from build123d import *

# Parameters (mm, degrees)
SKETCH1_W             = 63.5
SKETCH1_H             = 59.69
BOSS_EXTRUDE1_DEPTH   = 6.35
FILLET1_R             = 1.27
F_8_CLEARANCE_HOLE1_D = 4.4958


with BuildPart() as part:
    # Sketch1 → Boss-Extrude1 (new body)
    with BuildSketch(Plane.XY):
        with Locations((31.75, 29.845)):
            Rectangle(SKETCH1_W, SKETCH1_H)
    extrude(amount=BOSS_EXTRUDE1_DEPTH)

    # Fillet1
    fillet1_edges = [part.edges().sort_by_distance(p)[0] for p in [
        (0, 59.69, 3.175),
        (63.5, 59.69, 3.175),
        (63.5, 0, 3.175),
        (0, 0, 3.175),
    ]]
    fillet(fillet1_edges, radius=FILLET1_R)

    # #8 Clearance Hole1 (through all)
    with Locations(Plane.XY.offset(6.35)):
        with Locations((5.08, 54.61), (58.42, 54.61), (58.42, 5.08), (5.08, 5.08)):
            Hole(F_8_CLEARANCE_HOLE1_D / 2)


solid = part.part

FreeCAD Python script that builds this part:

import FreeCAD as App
import Part
import Sketcher
from FreeCAD import Vector
Q = App.Units.Quantity


def edges_at(feature, points):
    """Names of the edges that pass closest to the given points."""
    edges = feature.Shape.Edges
    near = lambda p: min(range(len(edges)), key=lambda i: edges[i].distToShape(Part.Vertex(*p))[0])
    return sorted({f"Edge{near(p) + 1}" for p in points})

doc = App.newDocument("Part")
body = doc.addObject("PartDesign::Body", "Body")

# Sketch on XY plane
sketch1 = body.newObject("Sketcher::SketchObject", "Sketch")
sketch1.AttachmentSupport = (doc.getObject("XY_Plane"), [""])
sketch1.MapMode = "FlatFace"
sketch1.addGeometry([
    Part.LineSegment(Vector(0, 60, 0), Vector(0, 0, 0)),
    Part.LineSegment(Vector(0, 0, 0), Vector(64, 0, 0)),
    Part.LineSegment(Vector(64, 0, 0), Vector(64, 60, 0)),
    Part.LineSegment(Vector(64, 60, 0), Vector(0, 60, 0)),
], False)
sketch1.addConstraint([
    Sketcher.Constraint("Coincident", 0, 2, 1, 1),
    Sketcher.Constraint("Coincident", 1, 2, 2, 1),
    Sketcher.Constraint("Coincident", 2, 2, 3, 1),
    Sketcher.Constraint("Coincident", 3, 2, 0, 1),
    Sketcher.Constraint("Vertical", 0),
    Sketcher.Constraint("Horizontal", 1),
    Sketcher.Constraint("Vertical", 2),
    Sketcher.Constraint("Horizontal", 3),
    Sketcher.Constraint("Coincident", 0, 2, -1, 1),
    Sketcher.Constraint("DistanceX", 1, 1, 1, 2, Q("2.5 in")),
    Sketcher.Constraint("DistanceY", 0, 2, 0, 1, Q("2.35 in")),
])
pad1 = body.newObject("PartDesign::Pad", "Pad")
pad1.Profile = sketch1
pad1.Length = Q("0.25 in")
doc.recompute()

fillet = body.newObject("PartDesign::Fillet", "Fillet")
fillet.Base = (pad1, edges_at(pad1, [
    (0, 59.69, 3.175),
    (63.5, 59.69, 3.175),
    (63.5, 0, 3.175),
    (0, 0, 3.175),
]))
fillet.Radius = Q("0.05 in")

# Sketch on XY plane
sketch2 = body.newObject("Sketcher::SketchObject", "Sketch001")
sketch2.AttachmentSupport = (doc.getObject("XY_Plane"), [""])
sketch2.MapMode = "FlatFace"
sketch2.AttachmentOffset = App.Placement(Vector(0, 0, 0.25 * 25.4), App.Rotation())
sketch2.addGeometry([
    Part.Circle(Vector(5.1, 54.6, 0), Vector(0, 0, 1), 2.2),
    Part.Circle(Vector(58.4, 54.6, 0), Vector(0, 0, 1), 2.2),
    Part.Circle(Vector(58.4, 5.1, 0), Vector(0, 0, 1), 2.2),
    Part.Circle(Vector(5.1, 5.1, 0), Vector(0, 0, 1), 2.2),
], False)
sketch2.addConstraint([
    Sketcher.Constraint("Equal", 0, 1),
    Sketcher.Constraint("Equal", 1, 2),
    Sketcher.Constraint("Equal", 2, 3),
    Sketcher.Constraint("Horizontal", 0, 3, 1, 3),
    Sketcher.Constraint("Horizontal", 2, 3, 3, 3),
    Sketcher.Constraint("Vertical", 1, 3, 2, 3),
    Sketcher.Constraint("Vertical", 0, 3, 3, 3),
    Sketcher.Constraint("Diameter", 0, Q("0.177 in")),
    Sketcher.Constraint("DistanceX", -1, 1, 0, 3, Q("0.2 in")),
    Sketcher.Constraint("DistanceX", -1, 1, 1, 3, Q("2.3 in")),
    Sketcher.Constraint("DistanceY", -1, 1, 2, 3, Q("0.2 in")),
    Sketcher.Constraint("DistanceY", -1, 1, 0, 3, Q("2.15 in")),
])
doc.recompute()
hole = body.newObject("PartDesign::Hole", "Hole")
hole.Profile = sketch2
hole.ThreadType = "None"
hole.Diameter = Q("0.177 in")
hole.DepthType = "ThroughAll"

doc.recompute()
